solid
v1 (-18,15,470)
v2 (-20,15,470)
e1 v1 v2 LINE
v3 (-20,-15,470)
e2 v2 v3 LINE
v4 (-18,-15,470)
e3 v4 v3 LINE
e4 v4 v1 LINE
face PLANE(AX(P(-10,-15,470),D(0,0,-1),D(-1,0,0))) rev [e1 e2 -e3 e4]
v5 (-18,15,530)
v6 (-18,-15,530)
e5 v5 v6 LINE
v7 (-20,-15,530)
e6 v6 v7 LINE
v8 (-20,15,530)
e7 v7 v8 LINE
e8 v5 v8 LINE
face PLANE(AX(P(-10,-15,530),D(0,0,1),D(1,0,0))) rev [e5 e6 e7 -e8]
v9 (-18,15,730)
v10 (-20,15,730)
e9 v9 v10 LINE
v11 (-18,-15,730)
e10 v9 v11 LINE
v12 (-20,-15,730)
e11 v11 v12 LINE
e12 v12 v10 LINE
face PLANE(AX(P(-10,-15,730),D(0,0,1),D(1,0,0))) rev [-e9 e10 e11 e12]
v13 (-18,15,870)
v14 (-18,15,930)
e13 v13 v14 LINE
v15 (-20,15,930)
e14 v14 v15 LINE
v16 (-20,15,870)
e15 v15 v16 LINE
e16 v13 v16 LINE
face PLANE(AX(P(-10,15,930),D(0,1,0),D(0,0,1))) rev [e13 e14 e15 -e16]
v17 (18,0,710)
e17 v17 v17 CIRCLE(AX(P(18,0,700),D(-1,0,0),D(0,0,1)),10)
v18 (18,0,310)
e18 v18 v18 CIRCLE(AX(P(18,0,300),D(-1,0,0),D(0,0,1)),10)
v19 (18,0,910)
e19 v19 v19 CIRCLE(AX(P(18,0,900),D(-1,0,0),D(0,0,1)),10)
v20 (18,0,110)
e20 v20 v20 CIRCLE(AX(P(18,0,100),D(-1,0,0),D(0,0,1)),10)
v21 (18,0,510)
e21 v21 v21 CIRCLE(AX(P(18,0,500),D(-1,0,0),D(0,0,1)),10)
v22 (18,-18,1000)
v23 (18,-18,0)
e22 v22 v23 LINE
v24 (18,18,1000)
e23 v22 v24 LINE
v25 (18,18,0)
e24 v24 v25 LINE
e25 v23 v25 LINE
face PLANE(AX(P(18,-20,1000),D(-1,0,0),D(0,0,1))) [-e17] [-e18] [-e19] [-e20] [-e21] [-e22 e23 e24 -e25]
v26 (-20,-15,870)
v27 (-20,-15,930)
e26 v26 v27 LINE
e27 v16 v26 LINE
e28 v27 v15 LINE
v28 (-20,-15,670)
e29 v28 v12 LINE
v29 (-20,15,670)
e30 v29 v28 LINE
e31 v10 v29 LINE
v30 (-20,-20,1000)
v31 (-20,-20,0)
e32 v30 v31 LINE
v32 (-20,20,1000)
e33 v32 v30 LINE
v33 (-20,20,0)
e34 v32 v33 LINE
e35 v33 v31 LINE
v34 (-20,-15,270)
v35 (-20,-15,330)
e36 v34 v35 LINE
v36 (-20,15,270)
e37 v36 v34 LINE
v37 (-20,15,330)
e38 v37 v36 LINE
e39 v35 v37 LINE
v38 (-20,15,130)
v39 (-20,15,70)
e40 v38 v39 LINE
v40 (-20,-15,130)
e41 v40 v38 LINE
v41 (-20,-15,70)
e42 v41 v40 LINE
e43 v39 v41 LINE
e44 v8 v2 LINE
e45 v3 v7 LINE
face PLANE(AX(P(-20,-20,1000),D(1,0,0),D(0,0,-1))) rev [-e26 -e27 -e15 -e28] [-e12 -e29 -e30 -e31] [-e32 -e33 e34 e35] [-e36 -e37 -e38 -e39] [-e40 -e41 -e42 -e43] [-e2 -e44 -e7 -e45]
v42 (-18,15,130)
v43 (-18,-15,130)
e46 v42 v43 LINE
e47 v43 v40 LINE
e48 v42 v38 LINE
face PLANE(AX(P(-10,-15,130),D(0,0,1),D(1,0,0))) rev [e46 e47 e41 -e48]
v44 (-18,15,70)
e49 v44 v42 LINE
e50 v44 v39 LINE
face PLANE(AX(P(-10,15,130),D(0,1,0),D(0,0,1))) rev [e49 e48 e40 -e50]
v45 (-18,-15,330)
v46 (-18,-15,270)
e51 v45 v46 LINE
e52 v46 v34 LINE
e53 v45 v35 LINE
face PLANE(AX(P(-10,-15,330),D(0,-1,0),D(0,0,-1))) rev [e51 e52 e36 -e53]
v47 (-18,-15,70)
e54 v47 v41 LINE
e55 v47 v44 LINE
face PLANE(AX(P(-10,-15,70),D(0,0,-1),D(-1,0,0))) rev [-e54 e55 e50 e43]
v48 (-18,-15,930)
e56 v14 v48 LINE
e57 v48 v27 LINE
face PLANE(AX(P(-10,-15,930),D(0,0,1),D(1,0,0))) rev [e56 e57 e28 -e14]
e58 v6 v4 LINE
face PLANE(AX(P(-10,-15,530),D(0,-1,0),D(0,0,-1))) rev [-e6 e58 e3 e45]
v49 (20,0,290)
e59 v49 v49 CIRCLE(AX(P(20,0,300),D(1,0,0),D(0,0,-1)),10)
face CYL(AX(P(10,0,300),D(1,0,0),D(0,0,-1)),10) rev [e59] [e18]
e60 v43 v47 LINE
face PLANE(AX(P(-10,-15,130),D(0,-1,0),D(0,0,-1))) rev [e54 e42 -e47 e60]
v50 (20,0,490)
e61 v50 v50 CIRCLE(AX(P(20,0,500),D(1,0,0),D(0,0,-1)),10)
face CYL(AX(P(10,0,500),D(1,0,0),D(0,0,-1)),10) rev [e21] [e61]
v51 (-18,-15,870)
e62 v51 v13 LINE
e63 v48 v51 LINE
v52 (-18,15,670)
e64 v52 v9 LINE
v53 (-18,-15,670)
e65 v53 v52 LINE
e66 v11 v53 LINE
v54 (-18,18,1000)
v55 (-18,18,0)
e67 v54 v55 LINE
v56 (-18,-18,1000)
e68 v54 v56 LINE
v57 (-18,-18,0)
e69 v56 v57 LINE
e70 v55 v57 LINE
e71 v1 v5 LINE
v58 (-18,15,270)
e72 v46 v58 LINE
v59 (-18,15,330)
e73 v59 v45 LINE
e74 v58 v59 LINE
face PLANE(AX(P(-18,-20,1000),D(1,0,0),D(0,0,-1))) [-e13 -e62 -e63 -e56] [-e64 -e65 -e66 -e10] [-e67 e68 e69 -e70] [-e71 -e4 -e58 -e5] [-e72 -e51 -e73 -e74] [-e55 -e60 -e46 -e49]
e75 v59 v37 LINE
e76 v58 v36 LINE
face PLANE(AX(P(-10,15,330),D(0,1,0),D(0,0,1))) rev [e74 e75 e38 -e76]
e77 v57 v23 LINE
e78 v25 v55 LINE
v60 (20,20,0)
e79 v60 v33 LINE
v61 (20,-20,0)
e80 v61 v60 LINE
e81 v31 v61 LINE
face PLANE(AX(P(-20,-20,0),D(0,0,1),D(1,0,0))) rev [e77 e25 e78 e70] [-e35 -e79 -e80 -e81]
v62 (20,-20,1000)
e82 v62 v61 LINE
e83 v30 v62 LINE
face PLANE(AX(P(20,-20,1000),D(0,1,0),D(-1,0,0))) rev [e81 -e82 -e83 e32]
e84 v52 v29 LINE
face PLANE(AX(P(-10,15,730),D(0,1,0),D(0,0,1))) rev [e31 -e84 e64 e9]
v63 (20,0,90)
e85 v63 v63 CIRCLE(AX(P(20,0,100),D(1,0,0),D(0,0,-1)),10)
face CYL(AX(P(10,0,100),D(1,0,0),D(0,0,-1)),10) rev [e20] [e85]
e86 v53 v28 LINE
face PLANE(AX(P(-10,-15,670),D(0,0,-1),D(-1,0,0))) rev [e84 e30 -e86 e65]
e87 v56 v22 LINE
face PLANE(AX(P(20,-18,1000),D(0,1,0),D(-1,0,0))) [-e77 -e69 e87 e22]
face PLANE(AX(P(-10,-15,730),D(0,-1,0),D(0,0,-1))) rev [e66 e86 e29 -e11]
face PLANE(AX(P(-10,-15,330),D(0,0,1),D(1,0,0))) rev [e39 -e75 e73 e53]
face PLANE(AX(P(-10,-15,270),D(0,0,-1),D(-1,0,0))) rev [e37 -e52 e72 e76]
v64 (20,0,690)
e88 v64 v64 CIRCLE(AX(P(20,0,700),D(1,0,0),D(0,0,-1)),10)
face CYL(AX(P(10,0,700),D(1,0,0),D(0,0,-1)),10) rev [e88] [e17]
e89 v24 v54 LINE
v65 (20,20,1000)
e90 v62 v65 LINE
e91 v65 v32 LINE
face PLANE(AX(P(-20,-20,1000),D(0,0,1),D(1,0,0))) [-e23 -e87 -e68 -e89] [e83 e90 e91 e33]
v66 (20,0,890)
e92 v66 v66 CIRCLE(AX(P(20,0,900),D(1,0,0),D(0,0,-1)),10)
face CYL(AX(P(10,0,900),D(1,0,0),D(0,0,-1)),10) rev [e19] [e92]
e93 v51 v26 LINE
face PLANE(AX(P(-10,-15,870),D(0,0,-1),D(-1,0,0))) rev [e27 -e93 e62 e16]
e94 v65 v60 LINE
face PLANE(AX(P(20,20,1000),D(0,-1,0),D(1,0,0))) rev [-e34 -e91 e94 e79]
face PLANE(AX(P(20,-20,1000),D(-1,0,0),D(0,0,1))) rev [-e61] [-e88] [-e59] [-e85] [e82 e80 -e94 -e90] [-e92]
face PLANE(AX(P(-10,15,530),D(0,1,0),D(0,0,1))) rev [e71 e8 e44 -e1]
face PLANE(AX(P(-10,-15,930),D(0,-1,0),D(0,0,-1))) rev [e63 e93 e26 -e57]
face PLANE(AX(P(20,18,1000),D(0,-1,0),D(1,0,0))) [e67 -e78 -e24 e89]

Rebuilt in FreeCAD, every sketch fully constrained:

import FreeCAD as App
import Part
import Sketcher
from FreeCAD import Vector
Q = App.Units.Quantity

doc = App.newDocument("Part")
body = doc.addObject("PartDesign::Body", "Body")

sketch1 = body.newObject("Sketcher::SketchObject", "Sketch")
sketch1.AttachmentSupport = (doc.getObject("XY_Plane"), [""])
sketch1.MapMode = "FlatFace"
sketch1.addGeometry([
    Part.LineSegment(Vector(-20, 20, 0), Vector(-20, -20, 0)),
    Part.LineSegment(Vector(-20, -20, 0), Vector(20, -20, 0)),
    Part.LineSegment(Vector(20, -20, 0), Vector(20, 20, 0)),
    Part.LineSegment(Vector(20, 20, 0), Vector(-20, 20, 0)),
    Part.LineSegment(Vector(18, -18, 0), Vector(-18, -18, 0)),
    Part.LineSegment(Vector(-18, -18, 0), Vector(-18, 18, 0)),
    Part.LineSegment(Vector(-18, 18, 0), Vector(18, 18, 0)),
    Part.LineSegment(Vector(18, 18, 0), Vector(18, -18, 0)),
], False)
sketch1.addConstraint([
    Sketcher.Constraint("Coincident", 0, 2, 1, 1),
    Sketcher.Constraint("Coincident", 1, 2, 2, 1),
    Sketcher.Constraint("Coincident", 2, 2, 3, 1),
    Sketcher.Constraint("Coincident", 3, 2, 0, 1),
    Sketcher.Constraint("Coincident", 4, 2, 5, 1),
    Sketcher.Constraint("Coincident", 5, 2, 6, 1),
    Sketcher.Constraint("Coincident", 6, 2, 7, 1),
    Sketcher.Constraint("Coincident", 7, 2, 4, 1),
    Sketcher.Constraint("Vertical", 0),
    Sketcher.Constraint("Horizontal", 1),
    Sketcher.Constraint("Vertical", 2),
    Sketcher.Constraint("Horizontal", 3),
    Sketcher.Constraint("Horizontal", 4),
    Sketcher.Constraint("Vertical", 5),
    Sketcher.Constraint("Horizontal", 6),
    Sketcher.Constraint("Vertical", 7),
    Sketcher.Constraint("Symmetric", 0, 2, 2, 2, -1, 1),
    Sketcher.Constraint("Symmetric", 4, 2, 6, 2, -1, 1),
    Sketcher.Constraint("Equal", 3, 0),
    Sketcher.Constraint("Equal", 6, 5),
    Sketcher.Constraint("DistanceX", 1, 1, 1, 2, Q("40 mm")),
    Sketcher.Constraint("DistanceX", 4, 2, 4, 1, Q("36 mm")),
])
pad1 = body.newObject("PartDesign::Pad", "Pad")
pad1.Profile = sketch1
pad1.Length = 1000

sketch2 = body.newObject("Sketcher::SketchObject", "Sketch001")
sketch2.AttachmentSupport = (doc.getObject("YZ_Plane"), [""])
sketch2.MapMode = "FlatFace"
sketch2.AttachmentOffset = App.Placement(Vector(0, 0, 20), App.Rotation())
sketch2.addGeometry([
    Part.Circle(Vector(0, 500, 0), Vector(0, 0, 1), 10),
    Part.Circle(Vector(0, 300, 0), Vector(0, 0, 1), 10),
    Part.Circle(Vector(0, 100, 0), Vector(0, 0, 1), 10),
    Part.Circle(Vector(0, 700, 0), Vector(0, 0, 1), 10),
    Part.Circle(Vector(0, 900, 0), Vector(0, 0, 1), 10),
], False)
sketch2.addConstraint([
    Sketcher.Constraint("Equal", 0, 1),
    Sketcher.Constraint("Equal", 1, 2),
    Sketcher.Constraint("Equal", 2, 3),
    Sketcher.Constraint("Equal", 3, 4),
    Sketcher.Constraint("PointOnObject", 0, 3, -2),
    Sketcher.Constraint("PointOnObject", 1, 3, -2),
    Sketcher.Constraint("PointOnObject", 2, 3, -2),
    Sketcher.Constraint("PointOnObject", 3, 3, -2),
    Sketcher.Constraint("PointOnObject", 4, 3, -2),
    Sketcher.Constraint("Diameter", 0, Q("20 mm")),
    Sketcher.Constraint("DistanceY", -1, 1, 0, 3, Q("500 mm")),
    Sketcher.Constraint("DistanceY", -1, 1, 1, 3, Q("300 mm")),
    Sketcher.Constraint("DistanceY", -1, 1, 2, 3, Q("100 mm")),
    Sketcher.Constraint("DistanceY", -1, 1, 3, 3, Q("700 mm")),
    Sketcher.Constraint("DistanceY", -1, 1, 4, 3, Q("900 mm")),
])
pocket1 = body.newObject("PartDesign::Pocket", "Pocket")
pocket1.Profile = sketch2
pocket1.Length = 10

sketch3 = body.newObject("Sketcher::SketchObject", "Sketch002")
sketch3.AttachmentSupport = (doc.getObject("YZ_Plane"), [""])
sketch3.MapMode = "FlatFace"
sketch3.AttachmentOffset = App.Placement(Vector(0, 0, -20), App.Rotation())
sketch3.addGeometry([
    Part.LineSegment(Vector(15, 70, 0), Vector(-15, 70, 0)),
    Part.LineSegment(Vector(-15, 70, 0), Vector(-15, 130, 0)),
    Part.LineSegment(Vector(-15, 130, 0), Vector(15, 130, 0)),
    Part.LineSegment(Vector(15, 130, 0), Vector(15, 70, 0)),
    Part.LineSegment(Vector(15, 270, 0), Vector(-15, 270, 0)),
    Part.LineSegment(Vector(-15, 270, 0), Vector(-15, 330, 0)),
    Part.LineSegment(Vector(-15, 330, 0), Vector(15, 330, 0)),
    Part.LineSegment(Vector(15, 330, 0), Vector(15, 270, 0)),
    Part.LineSegment(Vector(15, 470, 0), Vector(-15, 470, 0)),
    Part.LineSegment(Vector(-15, 470, 0), Vector(-15, 530, 0)),
    Part.LineSegment(Vector(-15, 530, 0), Vector(15, 530, 0)),
    Part.LineSegment(Vector(15, 530, 0), Vector(15, 470, 0)),
    Part.LineSegment(Vector(15, 670, 0), Vector(-15, 670, 0)),
    Part.LineSegment(Vector(-15, 670, 0), Vector(-15, 730, 0)),
    Part.LineSegment(Vector(-15, 730, 0), Vector(15, 730, 0)),
    Part.LineSegment(Vector(15, 730, 0), Vector(15, 670, 0)),
    Part.LineSegment(Vector(15, 870, 0), Vector(-15, 870, 0)),
    Part.LineSegment(Vector(-15, 870, 0), Vector(-15, 930, 0)),
    Part.LineSegment(Vector(-15, 930, 0), Vector(15, 930, 0)),
    Part.LineSegment(Vector(15, 930, 0), Vector(15, 870, 0)),
], False)
sketch3.addConstraint([
    Sketcher.Constraint("Coincident", 0, 2, 1, 1),
    Sketcher.Constraint("Coincident", 1, 2, 2, 1),
    Sketcher.Constraint("Coincident", 2, 2, 3, 1),
    Sketcher.Constraint("Coincident", 3, 2, 0, 1),
    Sketcher.Constraint("Coincident", 4, 2, 5, 1),
    Sketcher.Constraint("Coincident", 5, 2, 6, 1),
    Sketcher.Constraint("Coincident", 6, 2, 7, 1),
    Sketcher.Constraint("Coincident", 7, 2, 4, 1),
    Sketcher.Constraint("Coincident", 8, 2, 9, 1),
    Sketcher.Constraint("Coincident", 9, 2, 10, 1),
    Sketcher.Constraint("Coincident", 10, 2, 11, 1),
    Sketcher.Constraint("Coincident", 11, 2, 8, 1),
    Sketcher.Constraint("Coincident", 12, 2, 13, 1),
    Sketcher.Constraint("Coincident", 13, 2, 14, 1),
    Sketcher.Constraint("Coincident", 14, 2, 15, 1),
    Sketcher.Constraint("Coincident", 15, 2, 12, 1),
    Sketcher.Constraint("Coincident", 16, 2, 17, 1),
    Sketcher.Constraint("Coincident", 17, 2, 18, 1),
    Sketcher.Constraint("Coincident", 18, 2, 19, 1),
    Sketcher.Constraint("Coincident", 19, 2, 16, 1),
    Sketcher.Constraint("Horizontal", 0),
    Sketcher.Constraint("Vertical", 1),
    Sketcher.Constraint("Horizontal", 2),
    Sketcher.Constraint("Vertical", 3),
    Sketcher.Constraint("Horizontal", 4),
    Sketcher.Constraint("Vertical", 5),
    Sketcher.Constraint("Horizontal", 6),
    Sketcher.Constraint("Vertical", 7),
    Sketcher.Constraint("Horizontal", 8),
    Sketcher.Constraint("Vertical", 9),
    Sketcher.Constraint("Horizontal", 10),
    Sketcher.Constraint("Vertical", 11),
    Sketcher.Constraint("Horizontal", 12),
    Sketcher.Constraint("Vertical", 13),
    Sketcher.Constraint("Horizontal", 14),
    Sketcher.Constraint("Vertical", 15),
    Sketcher.Constraint("Horizontal", 16),
    Sketcher.Constraint("Vertical", 17),
    Sketcher.Constraint("Horizontal", 18),
    Sketcher.Constraint("Vertical", 19),
    Sketcher.Constraint("Vertical", 1, 2, 4, 2),
    Sketcher.Constraint("Vertical", 3, 2, 6, 2),
    Sketcher.Constraint("Vertical", 5, 2, 8, 2),
    Sketcher.Constraint("Vertical", 7, 2, 10, 2),
    Sketcher.Constraint("Vertical", 9, 2, 12, 2),
    Sketcher.Constraint("Vertical", 11, 2, 14, 2),
    Sketcher.Constraint("Vertical", 13, 2, 16, 2),
    Sketcher.Constraint("Vertical", 15, 2, 18, 2),
    Sketcher.Constraint("Equal", 3, 5),
    Sketcher.Constraint("Equal", 7, 9),
    Sketcher.Constraint("Equal", 11, 13),
    Sketcher.Constraint("Equal", 15, 17),
    Sketcher.Constraint("DistanceX", 0, 2, 0, 1, Q("30 mm")),
    Sketcher.Constraint("DistanceY", 1, 1, 1, 2, Q("60 mm")),
    Sketcher.Constraint("DistanceX", 0, 2, -1, 1, Q("15 mm")),
    Sketcher.Constraint("DistanceY", -1, 1, 0, 2, Q("70 mm")),
    Sketcher.Constraint("DistanceY", -1, 1, 4, 2, Q("270 mm")),
    Sketcher.Constraint("DistanceY", -1, 1, 8, 2, Q("470 mm")),
    Sketcher.Constraint("DistanceY", -1, 1, 12, 2, Q("670 mm")),
    Sketcher.Constraint("DistanceY", -1, 1, 16, 2, Q("870 mm")),
])
pocket2 = body.newObject("PartDesign::Pocket", "Pocket001")
pocket2.Profile = sketch3
pocket2.Length = 10
pocket2.Reversed = True

doc.recompute()
